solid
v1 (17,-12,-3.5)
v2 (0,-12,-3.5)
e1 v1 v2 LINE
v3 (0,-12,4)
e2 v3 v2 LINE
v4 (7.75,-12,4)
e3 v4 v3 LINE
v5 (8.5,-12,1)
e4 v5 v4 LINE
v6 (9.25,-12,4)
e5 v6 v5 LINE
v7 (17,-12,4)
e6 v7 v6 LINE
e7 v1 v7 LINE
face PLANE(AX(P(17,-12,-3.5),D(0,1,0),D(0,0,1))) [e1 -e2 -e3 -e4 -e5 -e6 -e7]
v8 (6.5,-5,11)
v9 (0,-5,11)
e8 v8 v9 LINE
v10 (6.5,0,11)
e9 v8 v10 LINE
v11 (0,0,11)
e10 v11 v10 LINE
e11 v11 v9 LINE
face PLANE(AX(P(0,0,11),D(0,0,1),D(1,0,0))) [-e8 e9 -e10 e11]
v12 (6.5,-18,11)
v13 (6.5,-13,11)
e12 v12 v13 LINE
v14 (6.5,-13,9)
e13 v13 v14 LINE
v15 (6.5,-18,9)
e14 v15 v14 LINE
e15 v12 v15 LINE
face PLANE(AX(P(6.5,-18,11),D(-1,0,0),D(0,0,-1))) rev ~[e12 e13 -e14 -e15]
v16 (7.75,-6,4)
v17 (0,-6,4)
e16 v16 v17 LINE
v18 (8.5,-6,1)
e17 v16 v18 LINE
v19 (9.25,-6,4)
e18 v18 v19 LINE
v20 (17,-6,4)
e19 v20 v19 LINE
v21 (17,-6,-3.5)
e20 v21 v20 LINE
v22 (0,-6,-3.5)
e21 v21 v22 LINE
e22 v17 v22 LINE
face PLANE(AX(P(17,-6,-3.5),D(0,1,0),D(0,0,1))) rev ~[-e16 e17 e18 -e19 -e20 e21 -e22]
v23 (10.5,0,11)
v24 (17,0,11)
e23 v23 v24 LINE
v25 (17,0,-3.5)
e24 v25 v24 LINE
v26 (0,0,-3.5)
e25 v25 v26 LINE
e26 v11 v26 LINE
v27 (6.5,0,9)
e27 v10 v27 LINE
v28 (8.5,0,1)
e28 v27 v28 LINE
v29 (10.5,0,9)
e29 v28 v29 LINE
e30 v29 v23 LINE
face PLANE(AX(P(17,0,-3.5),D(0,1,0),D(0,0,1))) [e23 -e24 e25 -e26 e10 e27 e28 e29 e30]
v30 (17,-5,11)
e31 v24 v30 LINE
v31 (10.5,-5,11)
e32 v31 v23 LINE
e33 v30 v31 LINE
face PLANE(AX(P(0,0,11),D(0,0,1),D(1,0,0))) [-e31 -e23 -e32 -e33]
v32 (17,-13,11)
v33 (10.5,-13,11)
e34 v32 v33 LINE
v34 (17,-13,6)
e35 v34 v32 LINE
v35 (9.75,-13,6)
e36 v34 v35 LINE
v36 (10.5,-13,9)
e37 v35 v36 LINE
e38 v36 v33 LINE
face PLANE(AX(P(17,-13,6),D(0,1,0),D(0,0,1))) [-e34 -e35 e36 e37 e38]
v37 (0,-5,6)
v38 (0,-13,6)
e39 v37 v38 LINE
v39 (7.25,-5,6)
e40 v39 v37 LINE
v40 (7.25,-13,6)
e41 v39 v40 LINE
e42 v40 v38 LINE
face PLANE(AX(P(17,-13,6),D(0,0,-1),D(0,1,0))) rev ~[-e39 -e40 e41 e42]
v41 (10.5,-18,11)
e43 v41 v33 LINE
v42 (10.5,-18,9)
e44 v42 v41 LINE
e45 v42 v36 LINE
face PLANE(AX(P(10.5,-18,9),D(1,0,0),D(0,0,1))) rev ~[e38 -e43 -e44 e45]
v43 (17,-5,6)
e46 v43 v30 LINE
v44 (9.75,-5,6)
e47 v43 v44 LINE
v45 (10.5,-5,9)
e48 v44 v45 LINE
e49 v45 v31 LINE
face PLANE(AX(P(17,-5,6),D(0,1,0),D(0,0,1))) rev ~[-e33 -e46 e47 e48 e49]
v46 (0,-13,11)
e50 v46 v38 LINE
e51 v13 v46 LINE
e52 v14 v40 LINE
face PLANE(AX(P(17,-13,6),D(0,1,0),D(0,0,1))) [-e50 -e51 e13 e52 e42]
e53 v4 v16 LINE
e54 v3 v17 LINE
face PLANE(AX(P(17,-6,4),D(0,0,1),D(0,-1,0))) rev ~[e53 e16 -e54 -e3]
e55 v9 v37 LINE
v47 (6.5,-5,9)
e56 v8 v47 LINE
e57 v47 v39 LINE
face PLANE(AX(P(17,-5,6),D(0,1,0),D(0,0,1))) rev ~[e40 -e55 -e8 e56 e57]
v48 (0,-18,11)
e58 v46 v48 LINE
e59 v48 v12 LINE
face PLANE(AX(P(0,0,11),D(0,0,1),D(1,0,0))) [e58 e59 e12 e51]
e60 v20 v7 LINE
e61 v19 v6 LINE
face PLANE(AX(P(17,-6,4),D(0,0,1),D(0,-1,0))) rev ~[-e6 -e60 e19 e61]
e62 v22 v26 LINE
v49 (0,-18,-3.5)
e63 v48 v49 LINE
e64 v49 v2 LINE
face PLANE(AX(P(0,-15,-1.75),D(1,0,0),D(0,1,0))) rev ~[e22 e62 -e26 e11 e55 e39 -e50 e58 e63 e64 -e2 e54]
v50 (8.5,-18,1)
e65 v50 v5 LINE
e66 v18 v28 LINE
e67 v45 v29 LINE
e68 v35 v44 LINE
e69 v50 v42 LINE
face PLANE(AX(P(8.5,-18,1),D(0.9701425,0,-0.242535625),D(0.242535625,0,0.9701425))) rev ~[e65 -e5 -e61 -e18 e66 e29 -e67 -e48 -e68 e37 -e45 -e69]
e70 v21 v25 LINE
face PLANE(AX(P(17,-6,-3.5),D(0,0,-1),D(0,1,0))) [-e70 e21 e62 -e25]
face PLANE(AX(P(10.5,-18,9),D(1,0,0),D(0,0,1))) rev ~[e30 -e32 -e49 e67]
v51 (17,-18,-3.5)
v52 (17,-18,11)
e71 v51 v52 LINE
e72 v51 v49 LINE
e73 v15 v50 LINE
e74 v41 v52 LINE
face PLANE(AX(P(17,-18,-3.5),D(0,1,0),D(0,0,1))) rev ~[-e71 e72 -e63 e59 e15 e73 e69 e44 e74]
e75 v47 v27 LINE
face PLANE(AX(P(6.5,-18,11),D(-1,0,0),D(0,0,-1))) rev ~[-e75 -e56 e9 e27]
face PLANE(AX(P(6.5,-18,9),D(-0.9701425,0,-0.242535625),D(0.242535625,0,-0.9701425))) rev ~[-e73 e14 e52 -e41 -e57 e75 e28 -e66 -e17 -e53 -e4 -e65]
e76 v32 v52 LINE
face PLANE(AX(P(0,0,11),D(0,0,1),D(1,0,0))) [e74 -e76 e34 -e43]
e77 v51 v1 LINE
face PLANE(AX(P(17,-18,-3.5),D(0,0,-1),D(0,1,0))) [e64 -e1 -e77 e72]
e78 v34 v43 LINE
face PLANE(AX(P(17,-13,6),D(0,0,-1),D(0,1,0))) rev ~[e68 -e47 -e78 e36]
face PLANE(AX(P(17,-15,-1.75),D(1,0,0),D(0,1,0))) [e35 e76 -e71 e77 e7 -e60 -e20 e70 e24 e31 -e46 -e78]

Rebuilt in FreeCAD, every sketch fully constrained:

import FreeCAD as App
import Part
import Sketcher

V = App.Vector
Q = App.Units.Quantity


def add_polygon(sketch, points):
    """Adds a closed chain of lines whose ends are joined by coincident constraints."""
    first, n = sketch.GeometryCount, len(points)
    for a, b in zip(points, points[1:] + points[:1]):
        sketch.addGeometry(Part.LineSegment(App.Vector(*a, 0), App.Vector(*b, 0)), False)
    for i in range(n):
        sketch.addConstraint(Sketcher.Constraint("Coincident", first + i, 2, first + (i + 1) % n, 1))

doc = App.newDocument("Part")
body = doc.addObject("PartDesign::Body", "Body")

sketch1 = body.newObject("Sketcher::SketchObject", "Sketch")
sketch1.AttachmentSupport = (doc.getObject("XZ_Plane"), [""])
sketch1.MapMode = "FlatFace"
add_polygon(sketch1, [(0, 11), (0, 0), (17, 0), (17, 11)])
sketch1.addConstraint(Sketcher.Constraint("Vertical", 0))
sketch1.addConstraint(Sketcher.Constraint("Horizontal", 1))
sketch1.addConstraint(Sketcher.Constraint("Vertical", 2))
sketch1.addConstraint(Sketcher.Constraint("Horizontal", 3))
sketch1.addConstraint(Sketcher.Constraint("Coincident", 0, 2, -1, 1))
sketch1.addConstraint(Sketcher.Constraint("DistanceX", 1, 1, 1, 2, Q("17 mm")))
sketch1.addConstraint(Sketcher.Constraint("DistanceY", 0, 2, 0, 1, Q("11 mm")))
pad1 = body.newObject("PartDesign::Pad", "Pad")
pad1.Profile = sketch1
pad1.Length = 18

sketch2 = body.newObject("Sketcher::SketchObject", "Sketch001")
sketch2.AttachmentSupport = (doc.getObject("XZ_Plane"), [""])
sketch2.MapMode = "FlatFace"
sketch2.AttachmentOffset = App.Placement(V(0, 0, 18), App.Rotation())
add_polygon(sketch2, [(10.5, 9), (10.5, 11), (6.5, 11), (6.5, 9), (8.5, 1)])
sketch2.addConstraint(Sketcher.Constraint("Vertical", 0))
sketch2.addConstraint(Sketcher.Constraint("Horizontal", 1))
sketch2.addConstraint(Sketcher.Constraint("Vertical", 2))
sketch2.addConstraint(Sketcher.Constraint("Horizontal", 2, 2, 4, 2))
sketch2.addConstraint(Sketcher.Constraint("Equal", 3, 4))
sketch2.addConstraint(Sketcher.Constraint("DistanceX", 1, 2, 1, 1, Q("4 mm")))
sketch2.addConstraint(Sketcher.Constraint("DistanceY", 0, 1, 0, 2, Q("2 mm")))
sketch2.addConstraint(Sketcher.Constraint("DistanceY", -1, 1, 0, 2, Q("11 mm")))
sketch2.addConstraint(Sketcher.Constraint("DistanceY", -1, 1, 3, 2, Q("1 mm")))
sketch2.addConstraint(Sketcher.Constraint("DistanceX", -1, 1, 0, 2, Q("10.5 mm")))
pocket1 = body.newObject("PartDesign::Pocket", "Pocket")
pocket1.Profile = sketch2
pocket1.Length = 25

sketch3 = body.newObject("Sketcher::SketchObject", "Sketch002")
sketch3.AttachmentSupport = (doc.getObject("YZ_Plane"), [""])
sketch3.MapMode = "FlatFace"
sketch3.AttachmentOffset = App.Placement(V(0, 0, 17), App.Rotation())
add_polygon(sketch3, [(-13, 11), (-13, 6), (-5, 6), (-5, 11)])
sketch3.addConstraint(Sketcher.Constraint("Vertical", 0))
sketch3.addConstraint(Sketcher.Constraint("Horizontal", 1))
sketch3.addConstraint(Sketcher.Constraint("Vertical", 2))
sketch3.addConstraint(Sketcher.Constraint("Horizontal", 3))
sketch3.addConstraint(Sketcher.Constraint("DistanceX", 1, 1, 1, 2, Q("8 mm")))
sketch3.addConstraint(Sketcher.Constraint("DistanceY", 0, 2, 0, 1, Q("5 mm")))
sketch3.addConstraint(Sketcher.Constraint("DistanceX", 0, 2, -1, 1, Q("13 mm")))
sketch3.addConstraint(Sketcher.Constraint("DistanceY", -1, 1, 0, 2, Q("6 mm")))
pocket2 = body.newObject("PartDesign::Pocket", "Pocket001")
pocket2.Profile = sketch3
pocket2.Length = 25

sketch4 = body.newObject("Sketcher::SketchObject", "Sketch003")
sketch4.AttachmentSupport = (doc.getObject("YZ_Plane"), [""])
sketch4.MapMode = "FlatFace"
sketch4.AttachmentOffset = App.Placement(V(0, 0, 17), App.Rotation())
add_polygon(sketch4, [(-6, 4), (-12, 4), (-12, 0), (-6, 0)])
sketch4.addConstraint(Sketcher.Constraint("Horizontal", 0))
sketch4.addConstraint(Sketcher.Constraint("Vertical", 1))
sketch4.addConstraint(Sketcher.Constraint("Horizontal", 2))
sketch4.addConstraint(Sketcher.Constraint("Vertical", 3))
sketch4.addConstraint(Sketcher.Constraint("PointOnObject", 1, 2, -1))
sketch4.addConstraint(Sketcher.Constraint("DistanceX", 0, 2, 0, 1, Q("6 mm")))
sketch4.addConstraint(Sketcher.Constraint("DistanceY", 1, 2, 1, 1, Q("4 mm")))
sketch4.addConstraint(Sketcher.Constraint("DistanceX", 0, 2, -1, 1, Q("12 mm")))
pocket3 = body.newObject("PartDesign::Pocket", "Pocket002")
pocket3.Profile = sketch4
pocket3.Length = 25

sketch5 = body.newObject("Sketcher::SketchObject", "Sketch004")
sketch5.AttachmentSupport = (doc.getObject("YZ_Plane"), [""])
sketch5.MapMode = "FlatFace"
sketch5.AttachmentOffset = App.Placement(V(0, 0, 17), App.Rotation())
add_polygon(sketch5, [(-6, 0), (-6, -3.5), (0, -3.5), (0, 0)])
sketch5.addConstraint(Sketcher.Constraint("Vertical", 0))
sketch5.addConstraint(Sketcher.Constraint("Horizontal", 1))
sketch5.addConstraint(Sketcher.Constraint("Vertical", 2))
sketch5.addConstraint(Sketcher.Constraint("Horizontal", 3))
sketch5.addConstraint(Sketcher.Constraint("Coincident", 2, 2, -1, 1))
sketch5.addConstraint(Sketcher.Constraint("DistanceX", 1, 1, 1, 2, Q("6 mm")))
sketch5.addConstraint(Sketcher.Constraint("DistanceY", 0, 2, 0, 1, Q("3.5 mm")))
pad2 = body.newObject("PartDesign::Pad", "Pad001")
pad2.Profile = sketch5
pad2.Length = 17
pad2.Reversed = True

sketch6 = body.newObject("Sketcher::SketchObject", "Sketch005")
sketch6.AttachmentSupport = (doc.getObject("YZ_Plane"), [""])
sketch6.MapMode = "FlatFace"
sketch6.AttachmentOffset = App.Placement(V(0, 0, 17), App.Rotation())
add_polygon(sketch6, [(-18, 0), (-18, -3.5), (-12, -3.5), (-12, 0)])
sketch6.addConstraint(Sketcher.Constraint("Vertical", 0))
sketch6.addConstraint(Sketcher.Constraint("Horizontal", 1))
sketch6.addConstraint(Sketcher.Constraint("Vertical", 2))
sketch6.addConstraint(Sketcher.Constraint("Horizontal", 3))
sketch6.addConstraint(Sketcher.Constraint("PointOnObject", 2, 2, -1))
sketch6.addConstraint(Sketcher.Constraint("DistanceX", 1, 1, 1, 2, Q("6 mm")))
sketch6.addConstraint(Sketcher.Constraint("DistanceY", 0, 2, 0, 1, Q("3.5 mm")))
sketch6.addConstraint(Sketcher.Constraint("DistanceX", 0, 2, -1, 1, Q("18 mm")))
pad3 = body.newObject("PartDesign::Pad", "Pad002")
pad3.Profile = sketch6
pad3.Length = 17
pad3.Reversed = True

doc.recompute()
